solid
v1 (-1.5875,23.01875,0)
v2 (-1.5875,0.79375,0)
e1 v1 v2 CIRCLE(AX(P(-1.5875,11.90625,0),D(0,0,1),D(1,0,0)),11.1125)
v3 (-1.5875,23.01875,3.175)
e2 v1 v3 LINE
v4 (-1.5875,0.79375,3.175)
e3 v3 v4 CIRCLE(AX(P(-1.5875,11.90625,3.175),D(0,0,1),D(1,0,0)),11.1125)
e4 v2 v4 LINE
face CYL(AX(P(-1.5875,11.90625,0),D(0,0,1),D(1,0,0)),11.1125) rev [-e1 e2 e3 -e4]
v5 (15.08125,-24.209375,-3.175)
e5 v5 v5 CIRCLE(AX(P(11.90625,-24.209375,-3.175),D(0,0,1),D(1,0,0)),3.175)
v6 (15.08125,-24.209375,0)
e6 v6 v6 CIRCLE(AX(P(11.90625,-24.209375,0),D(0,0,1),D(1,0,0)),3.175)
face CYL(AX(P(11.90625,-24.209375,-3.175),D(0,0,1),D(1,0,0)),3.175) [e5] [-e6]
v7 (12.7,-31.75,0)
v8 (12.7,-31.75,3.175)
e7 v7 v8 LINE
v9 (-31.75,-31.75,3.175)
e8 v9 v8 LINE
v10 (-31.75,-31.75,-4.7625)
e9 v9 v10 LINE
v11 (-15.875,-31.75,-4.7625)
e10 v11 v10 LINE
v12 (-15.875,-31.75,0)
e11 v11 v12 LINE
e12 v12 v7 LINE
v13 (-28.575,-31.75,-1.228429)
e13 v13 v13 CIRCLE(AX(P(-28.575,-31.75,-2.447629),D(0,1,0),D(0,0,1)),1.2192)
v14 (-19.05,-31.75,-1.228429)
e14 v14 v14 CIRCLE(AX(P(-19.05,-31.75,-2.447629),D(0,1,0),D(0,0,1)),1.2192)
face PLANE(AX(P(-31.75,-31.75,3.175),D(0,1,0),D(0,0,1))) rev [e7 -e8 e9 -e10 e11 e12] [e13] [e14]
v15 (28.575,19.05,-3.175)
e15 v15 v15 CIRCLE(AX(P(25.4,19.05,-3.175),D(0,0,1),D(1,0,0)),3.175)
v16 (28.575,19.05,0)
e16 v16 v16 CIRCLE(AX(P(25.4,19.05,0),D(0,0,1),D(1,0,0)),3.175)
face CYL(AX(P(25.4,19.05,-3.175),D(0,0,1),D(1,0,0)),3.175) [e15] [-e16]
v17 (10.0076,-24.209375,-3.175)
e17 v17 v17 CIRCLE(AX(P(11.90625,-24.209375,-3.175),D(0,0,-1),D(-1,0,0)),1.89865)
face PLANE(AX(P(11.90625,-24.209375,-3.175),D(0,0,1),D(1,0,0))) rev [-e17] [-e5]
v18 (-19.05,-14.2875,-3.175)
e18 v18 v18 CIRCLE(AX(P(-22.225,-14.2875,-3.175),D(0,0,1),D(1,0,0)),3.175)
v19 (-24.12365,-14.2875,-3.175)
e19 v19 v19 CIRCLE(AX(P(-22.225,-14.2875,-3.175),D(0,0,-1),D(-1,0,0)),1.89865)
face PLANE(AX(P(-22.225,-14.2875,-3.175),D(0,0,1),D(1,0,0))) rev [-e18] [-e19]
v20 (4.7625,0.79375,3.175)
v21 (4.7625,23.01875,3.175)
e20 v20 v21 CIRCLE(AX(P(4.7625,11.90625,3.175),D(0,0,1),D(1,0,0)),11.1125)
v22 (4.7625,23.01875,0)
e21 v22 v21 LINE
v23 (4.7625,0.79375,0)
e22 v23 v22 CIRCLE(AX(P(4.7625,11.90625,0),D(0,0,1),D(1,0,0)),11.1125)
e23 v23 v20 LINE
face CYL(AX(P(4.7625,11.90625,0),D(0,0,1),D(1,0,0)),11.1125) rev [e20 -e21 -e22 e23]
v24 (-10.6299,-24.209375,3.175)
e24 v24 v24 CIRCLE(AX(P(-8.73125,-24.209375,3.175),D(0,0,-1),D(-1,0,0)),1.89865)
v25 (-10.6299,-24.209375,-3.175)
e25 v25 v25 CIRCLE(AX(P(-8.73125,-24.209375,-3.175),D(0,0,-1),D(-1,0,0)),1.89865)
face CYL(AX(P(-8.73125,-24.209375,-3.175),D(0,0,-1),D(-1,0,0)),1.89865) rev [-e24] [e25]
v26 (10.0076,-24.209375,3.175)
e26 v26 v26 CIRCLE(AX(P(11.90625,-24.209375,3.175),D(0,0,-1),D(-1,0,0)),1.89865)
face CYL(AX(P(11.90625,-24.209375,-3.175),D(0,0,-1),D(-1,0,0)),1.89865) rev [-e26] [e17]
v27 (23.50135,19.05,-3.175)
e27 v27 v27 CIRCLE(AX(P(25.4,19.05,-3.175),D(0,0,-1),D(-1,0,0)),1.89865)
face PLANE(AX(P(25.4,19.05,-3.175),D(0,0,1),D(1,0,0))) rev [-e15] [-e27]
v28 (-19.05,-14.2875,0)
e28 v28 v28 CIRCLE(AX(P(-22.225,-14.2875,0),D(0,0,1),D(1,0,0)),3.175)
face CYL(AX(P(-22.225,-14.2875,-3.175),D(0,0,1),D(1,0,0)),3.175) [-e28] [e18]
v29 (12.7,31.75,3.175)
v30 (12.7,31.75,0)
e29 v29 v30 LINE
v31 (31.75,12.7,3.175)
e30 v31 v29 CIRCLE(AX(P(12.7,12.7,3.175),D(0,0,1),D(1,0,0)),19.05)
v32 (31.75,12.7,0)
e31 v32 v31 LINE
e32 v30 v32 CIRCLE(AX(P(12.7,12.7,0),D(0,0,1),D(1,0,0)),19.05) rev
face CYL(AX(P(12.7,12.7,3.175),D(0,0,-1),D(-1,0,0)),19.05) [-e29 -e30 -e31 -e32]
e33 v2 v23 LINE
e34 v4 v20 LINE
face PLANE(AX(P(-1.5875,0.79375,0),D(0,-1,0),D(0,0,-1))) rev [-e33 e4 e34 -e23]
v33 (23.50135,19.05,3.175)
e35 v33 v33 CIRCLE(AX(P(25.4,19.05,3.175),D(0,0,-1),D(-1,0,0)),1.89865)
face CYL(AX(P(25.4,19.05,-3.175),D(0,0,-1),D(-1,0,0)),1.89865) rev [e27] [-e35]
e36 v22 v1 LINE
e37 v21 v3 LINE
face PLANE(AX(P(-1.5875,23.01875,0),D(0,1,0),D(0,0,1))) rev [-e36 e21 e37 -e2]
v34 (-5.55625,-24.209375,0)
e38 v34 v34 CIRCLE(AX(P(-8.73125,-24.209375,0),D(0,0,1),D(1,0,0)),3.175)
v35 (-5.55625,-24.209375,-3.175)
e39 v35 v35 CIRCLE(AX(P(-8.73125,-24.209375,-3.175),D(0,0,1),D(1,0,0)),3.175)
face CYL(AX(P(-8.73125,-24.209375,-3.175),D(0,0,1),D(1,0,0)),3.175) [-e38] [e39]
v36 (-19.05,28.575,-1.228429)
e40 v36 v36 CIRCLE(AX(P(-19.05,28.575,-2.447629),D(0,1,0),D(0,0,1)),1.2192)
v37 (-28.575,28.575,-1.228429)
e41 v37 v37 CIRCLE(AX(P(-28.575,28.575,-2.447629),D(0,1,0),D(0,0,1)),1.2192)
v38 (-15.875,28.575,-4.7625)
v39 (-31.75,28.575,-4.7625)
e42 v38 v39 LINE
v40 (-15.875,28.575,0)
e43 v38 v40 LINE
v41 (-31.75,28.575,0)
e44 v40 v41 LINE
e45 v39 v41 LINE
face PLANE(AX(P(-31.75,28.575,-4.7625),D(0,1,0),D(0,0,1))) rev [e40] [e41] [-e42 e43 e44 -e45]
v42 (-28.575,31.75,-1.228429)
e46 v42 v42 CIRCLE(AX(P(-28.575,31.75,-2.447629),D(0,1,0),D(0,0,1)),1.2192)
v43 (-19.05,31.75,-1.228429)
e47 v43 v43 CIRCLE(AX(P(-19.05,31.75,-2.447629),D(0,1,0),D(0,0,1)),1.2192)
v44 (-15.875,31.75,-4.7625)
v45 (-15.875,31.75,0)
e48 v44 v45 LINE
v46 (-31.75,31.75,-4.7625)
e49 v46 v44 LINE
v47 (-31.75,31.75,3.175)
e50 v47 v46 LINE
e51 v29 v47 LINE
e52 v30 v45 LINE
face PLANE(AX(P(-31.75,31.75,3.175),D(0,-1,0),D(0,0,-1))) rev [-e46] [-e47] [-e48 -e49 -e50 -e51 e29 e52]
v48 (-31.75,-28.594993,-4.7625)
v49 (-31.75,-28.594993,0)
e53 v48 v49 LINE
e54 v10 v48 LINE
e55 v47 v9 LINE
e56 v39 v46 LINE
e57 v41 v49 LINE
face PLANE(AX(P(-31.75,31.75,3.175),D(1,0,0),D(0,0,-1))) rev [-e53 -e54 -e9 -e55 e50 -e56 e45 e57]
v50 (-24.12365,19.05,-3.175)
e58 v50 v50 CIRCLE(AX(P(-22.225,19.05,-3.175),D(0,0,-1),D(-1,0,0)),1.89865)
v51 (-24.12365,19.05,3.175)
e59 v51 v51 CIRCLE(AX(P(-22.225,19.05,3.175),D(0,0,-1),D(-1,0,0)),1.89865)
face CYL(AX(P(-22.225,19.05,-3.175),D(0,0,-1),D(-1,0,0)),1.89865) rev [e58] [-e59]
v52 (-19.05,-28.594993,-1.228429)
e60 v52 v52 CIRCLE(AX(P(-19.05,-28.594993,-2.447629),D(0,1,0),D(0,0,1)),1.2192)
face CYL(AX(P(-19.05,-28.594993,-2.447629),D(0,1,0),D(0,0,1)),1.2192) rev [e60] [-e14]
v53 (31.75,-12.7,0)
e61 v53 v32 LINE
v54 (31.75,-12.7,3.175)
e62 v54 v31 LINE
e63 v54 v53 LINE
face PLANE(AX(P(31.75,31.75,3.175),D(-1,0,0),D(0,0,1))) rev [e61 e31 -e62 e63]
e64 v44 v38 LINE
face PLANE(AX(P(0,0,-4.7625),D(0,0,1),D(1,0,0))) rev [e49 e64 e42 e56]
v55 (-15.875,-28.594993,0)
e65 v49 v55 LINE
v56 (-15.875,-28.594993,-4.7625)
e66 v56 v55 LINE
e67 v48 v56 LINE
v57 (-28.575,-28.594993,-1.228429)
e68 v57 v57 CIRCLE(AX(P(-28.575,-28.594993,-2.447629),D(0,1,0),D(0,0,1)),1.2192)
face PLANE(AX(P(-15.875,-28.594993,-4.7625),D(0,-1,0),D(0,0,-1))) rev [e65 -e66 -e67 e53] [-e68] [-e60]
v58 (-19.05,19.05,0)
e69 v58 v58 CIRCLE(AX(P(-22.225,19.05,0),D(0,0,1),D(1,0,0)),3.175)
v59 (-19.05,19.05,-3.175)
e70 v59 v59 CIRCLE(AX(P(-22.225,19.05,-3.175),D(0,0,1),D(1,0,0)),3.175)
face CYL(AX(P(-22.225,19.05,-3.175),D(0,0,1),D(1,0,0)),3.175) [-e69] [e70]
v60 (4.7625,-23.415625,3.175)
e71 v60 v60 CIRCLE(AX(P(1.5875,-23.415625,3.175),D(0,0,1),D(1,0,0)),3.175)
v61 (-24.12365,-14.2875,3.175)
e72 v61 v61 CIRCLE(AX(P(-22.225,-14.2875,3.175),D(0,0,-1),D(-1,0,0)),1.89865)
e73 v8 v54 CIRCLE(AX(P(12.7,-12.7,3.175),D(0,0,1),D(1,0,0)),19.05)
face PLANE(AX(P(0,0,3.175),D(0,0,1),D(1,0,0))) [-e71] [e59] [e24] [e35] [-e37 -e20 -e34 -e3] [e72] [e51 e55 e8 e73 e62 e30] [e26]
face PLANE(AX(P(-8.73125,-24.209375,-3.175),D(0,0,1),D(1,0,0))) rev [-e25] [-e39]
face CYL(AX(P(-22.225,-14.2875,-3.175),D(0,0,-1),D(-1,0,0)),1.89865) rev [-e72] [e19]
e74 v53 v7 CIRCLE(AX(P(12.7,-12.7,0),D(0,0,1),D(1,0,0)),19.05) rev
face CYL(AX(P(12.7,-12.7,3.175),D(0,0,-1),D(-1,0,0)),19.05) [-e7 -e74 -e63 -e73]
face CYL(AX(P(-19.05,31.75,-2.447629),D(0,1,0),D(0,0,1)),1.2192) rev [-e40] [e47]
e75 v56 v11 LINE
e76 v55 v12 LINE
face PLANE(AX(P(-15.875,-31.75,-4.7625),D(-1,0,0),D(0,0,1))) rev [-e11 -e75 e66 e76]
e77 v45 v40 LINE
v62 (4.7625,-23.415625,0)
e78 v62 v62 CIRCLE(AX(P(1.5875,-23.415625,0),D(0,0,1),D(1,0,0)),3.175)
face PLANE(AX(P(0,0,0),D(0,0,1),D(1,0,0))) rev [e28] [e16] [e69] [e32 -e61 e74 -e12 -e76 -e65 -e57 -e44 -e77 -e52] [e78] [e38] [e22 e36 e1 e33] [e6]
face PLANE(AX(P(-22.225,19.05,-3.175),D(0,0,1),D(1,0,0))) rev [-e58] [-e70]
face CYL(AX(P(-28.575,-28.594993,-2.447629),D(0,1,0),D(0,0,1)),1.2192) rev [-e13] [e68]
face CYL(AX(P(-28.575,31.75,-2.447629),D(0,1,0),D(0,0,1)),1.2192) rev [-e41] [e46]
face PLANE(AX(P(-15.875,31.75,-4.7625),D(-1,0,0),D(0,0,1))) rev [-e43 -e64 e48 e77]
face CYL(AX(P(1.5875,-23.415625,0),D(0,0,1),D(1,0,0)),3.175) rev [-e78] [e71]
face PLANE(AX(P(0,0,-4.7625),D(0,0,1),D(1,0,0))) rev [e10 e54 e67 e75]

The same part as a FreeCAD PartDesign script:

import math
import FreeCAD as App
import Part
import Sketcher
Q = App.Units.Quantity


def edges_at(feature, points):
    """Names of the edges that pass closest to the given points."""
    edges = feature.Shape.Edges
    near = lambda p: min(range(len(edges)), key=lambda i: edges[i].distToShape(Part.Vertex(*p))[0])
    return sorted({f"Edge{near(p) + 1}" for p in points})

doc = App.newDocument("Part")
body = doc.addObject("PartDesign::Body", "Body")

sketch1 = doc.addObject("Sketcher::SketchObject", "Sketch")
body.addObject(sketch1)
sketch1.AttachmentSupport = (doc.XY_Plane, [""])
sketch1.MapMode = "FlatFace"
sketch1.addGeometry([
    Part.LineSegment(App.Vector(-32, 32, 0), App.Vector(-32, -32, 0)),
    Part.LineSegment(App.Vector(-32, -32, 0), App.Vector(32, -32, 0)),
    Part.LineSegment(App.Vector(32, -32, 0), App.Vector(32, 32, 0)),
    Part.LineSegment(App.Vector(32, 32, 0), App.Vector(-32, 32, 0)),
], False)
sketch1.addConstraint([
    Sketcher.Constraint("Coincident", 0, 2, 1, 1),
    Sketcher.Constraint("Coincident", 1, 2, 2, 1),
    Sketcher.Constraint("Coincident", 2, 2, 3, 1),
    Sketcher.Constraint("Coincident", 3, 2, 0, 1),
    Sketcher.Constraint("Vertical", 0),
    Sketcher.Constraint("Horizontal", 1),
    Sketcher.Constraint("Vertical", 2),
    Sketcher.Constraint("Horizontal", 3),
    Sketcher.Constraint("Symmetric", 0, 2, 2, 2, -1, 1),
    Sketcher.Constraint("Equal", 3, 0),
    Sketcher.Constraint("DistanceX", 1, 1, 1, 2, Q("2.5 in")),
])
pad1 = doc.addObject("PartDesign::Pad", "Pad")
body.addObject(pad1)
pad1.Profile = sketch1
pad1.Length = Q("0.125 in")

sketch2 = doc.addObject("Sketcher::SketchObject", "Sketch001")
body.addObject(sketch2)
sketch2.AttachmentSupport = (doc.XY_Plane, [""])
sketch2.MapMode = "FlatFace"
sketch2.addGeometry([
    Part.LineSegment(App.Vector(-15.9, -31.8, 0), App.Vector(-31.8, -31.8, 0)),
    Part.LineSegment(App.Vector(-31.8, -31.8, 0), App.Vector(-31.8, -28.6, 0)),
    Part.LineSegment(App.Vector(-31.8, -28.6, 0), App.Vector(-15.9, -28.6, 0)),
    Part.LineSegment(App.Vector(-15.9, -28.6, 0), App.Vector(-15.9, -31.8, 0)),
], False)
sketch2.addConstraint([
    Sketcher.Constraint("Coincident", 0, 2, 1, 1),
    Sketcher.Constraint("Coincident", 1, 2, 2, 1),
    Sketcher.Constraint("Coincident", 2, 2, 3, 1),
    Sketcher.Constraint("Coincident", 3, 2, 0, 1),
    Sketcher.Constraint("Horizontal", 0),
    Sketcher.Constraint("Vertical", 1),
    Sketcher.Constraint("Horizontal", 2),
    Sketcher.Constraint("Vertical", 3),
    Sketcher.Constraint("DistanceX", 0, 2, 0, 1, Q("0.625 in")),
    Sketcher.Constraint("DistanceX", 0, 2, -1, 1, Q("1.25 in")),
    Sketcher.Constraint("DistanceY", 0, 2, -1, 1, Q("1.25 in")),
    Sketcher.Constraint("DistanceY", 1, 1, 1, 2, 3.155007),
])
pad2 = doc.addObject("PartDesign::Pad", "Pad001")
body.addObject(pad2)
pad2.Profile = sketch2
pad2.Length = Q("0.1875 in")
pad2.Reversed = True

sketch3 = doc.addObject("Sketcher::SketchObject", "Sketch002")
body.addObject(sketch3)
sketch3.AttachmentSupport = (doc.XZ_Plane, [""])
sketch3.MapMode = "FlatFace"
sketch3.AttachmentOffset = App.Placement(App.Vector(0, 0, 28.594993), App.Rotation())
sketch3.addGeometry([
    Part.Circle(App.Vector(-28.6, -2.4, 0), App.Vector(0, 0, 1), 1.2),
    Part.Circle(App.Vector(-19.1, -2.4, 0), App.Vector(0, 0, 1), 1.2),
], False)
sketch3.addConstraint([
    Sketcher.Constraint("Equal", 0, 1),
    Sketcher.Constraint("Horizontal", 0, 3, 1, 3),
    Sketcher.Constraint("Diameter", 0, Q("0.096 in")),
    Sketcher.Constraint("DistanceX", 1, 3, -1, 1, Q("0.75 in")),
    Sketcher.Constraint("DistanceX", 0, 3, -1, 1, Q("1.125 in")),
    Sketcher.Constraint("DistanceY", 0, 3, -1, 1, 2.447629),
])
doc.recompute()
hole = doc.addObject("PartDesign::Hole", "Hole")
body.addObject(hole)
hole.Profile = sketch3
hole.ThreadType = "None"
hole.Diameter = Q("0.096 in")
hole.DepthType = "Dimension"
hole.Depth = 3.155007
hole.DrillPoint = "Flat"
hole.Reversed = True
doc.recompute()

fillet = doc.addObject("PartDesign::Fillet", "Fillet")
body.addObject(fillet)
fillet.Base = (hole, edges_at(hole, [(31.75, -31.75, 1.587), (31.75, 31.75, 1.587)]))
fillet.Radius = Q("0.75 in")

sketch4 = doc.addObject("Sketcher::SketchObject", "Sketch003")
body.addObject(sketch4)
sketch4.AttachmentSupport = (doc.XY_Plane, [""])
sketch4.MapMode = "FlatFace"
sketch4.addGeometry([
    Part.LineSegment(App.Vector(-15.9, 31.8, 0), App.Vector(-15.9, 28.6, 0)),
    Part.LineSegment(App.Vector(-15.9, 28.6, 0), App.Vector(-31.8, 28.6, 0)),
    Part.LineSegment(App.Vector(-31.8, 28.6, 0), App.Vector(-31.8, 31.8, 0)),
    Part.LineSegment(App.Vector(-31.8, 31.8, 0), App.Vector(-15.9, 31.8, 0)),
], False)
sketch4.addConstraint([
    Sketcher.Constraint("Coincident", 0, 2, 1, 1),
    Sketcher.Constraint("Coincident", 1, 2, 2, 1),
    Sketcher.Constraint("Coincident", 2, 2, 3, 1),
    Sketcher.Constraint("Coincident", 3, 2, 0, 1),
    Sketcher.Constraint("Vertical", 0),
    Sketcher.Constraint("Horizontal", 1),
    Sketcher.Constraint("Vertical", 2),
    Sketcher.Constraint("Horizontal", 3),
    Sketcher.Constraint("DistanceX", 1, 2, 1, 1, Q("0.625 in")),
    Sketcher.Constraint("DistanceY", 0, 2, 0, 1, Q("0.125 in")),
    Sketcher.Constraint("DistanceX", 1, 2, -1, 1, Q("1.25 in")),
    Sketcher.Constraint("DistanceY", -1, 1, 2, 2, Q("1.25 in")),
])
pad3 = doc.addObject("PartDesign::Pad", "Pad002")
body.addObject(pad3)
pad3.Profile = sketch4
pad3.Length = Q("0.1875 in")
pad3.Reversed = True

sketch5 = doc.addObject("Sketcher::SketchObject", "Sketch004")
body.addObject(sketch5)
sketch5.AttachmentSupport = (doc.XZ_Plane, [""])
sketch5.MapMode = "FlatFace"
sketch5.AttachmentOffset = App.Placement(App.Vector(0, 0, -1.25 * 25.4), App.Rotation())
sketch5.addGeometry([
    Part.Circle(App.Vector(-28.6, -2.4, 0), App.Vector(0, 0, 1), 1.2),
    Part.Circle(App.Vector(-19.1, -2.4, 0), App.Vector(0, 0, 1), 1.2),
], False)
sketch5.addConstraint([
    Sketcher.Constraint("Equal", 0, 1),
    Sketcher.Constraint("Horizontal", 0, 3, 1, 3),
    Sketcher.Constraint("Diameter", 0, Q("0.096 in")),
    Sketcher.Constraint("DistanceX", 1, 3, -1, 1, Q("0.75 in")),
    Sketcher.Constraint("DistanceX", 0, 3, -1, 1, Q("1.125 in")),
    Sketcher.Constraint("DistanceY", 0, 3, -1, 1, 2.447629),
])
doc.recompute()
hole2 = doc.addObject("PartDesign::Hole", "Hole001")
body.addObject(hole2)
hole2.Profile = sketch5
hole2.ThreadType = "None"
hole2.Diameter = Q("0.096 in")
hole2.DepthType = "Dimension"
hole2.Depth = Q("0.125 in")
hole2.DrillPoint = "Flat"
hole2.Reversed = True

sketch6 = doc.addObject("Sketcher::SketchObject", "Sketch005")
body.addObject(sketch6)
sketch6.AttachmentSupport = (doc.XY_Plane, [""])
sketch6.MapMode = "FlatFace"
sketch6.addGeometry([
    Part.Circle(App.Vector(25.4, 19.1, 0), App.Vector(0, 0, 1), 3.2),
    Part.Circle(App.Vector(-22.2, 19.1, 0), App.Vector(0, 0, 1), 3.2),
    Part.Circle(App.Vector(-22.2, -14.3, 0), App.Vector(0, 0, 1), 3.2),
    Part.Circle(App.Vector(-8.7, -24.2, 0), App.Vector(0, 0, 1), 3.2),
    Part.Circle(App.Vector(11.9, -24.2, 0), App.Vector(0, 0, 1), 3.2),
], False)
sketch6.addConstraint([
    Sketcher.Constraint("Equal", 0, 1),
    Sketcher.Constraint("Equal", 1, 2),
    Sketcher.Constraint("Equal", 2, 3),
    Sketcher.Constraint("Equal", 3, 4),
    Sketcher.Constraint("Horizontal", 0, 3, 1, 3),
    Sketcher.Constraint("Horizontal", 3, 3, 4, 3),
    Sketcher.Constraint("Vertical", 1, 3, 2, 3),
    Sketcher.Constraint("Diameter", 0, Q("0.25 in")),
    Sketcher.Constraint("DistanceX", -1, 1, 0, 3, Q("1 in")),
    Sketcher.Constraint("DistanceY", -1, 1, 0, 3, Q("0.75 in")),
    Sketcher.Constraint("DistanceX", 1, 3, -1, 1, Q("0.875 in")),
    Sketcher.Constraint("DistanceY", 2, 3, -1, 1, Q("0.5625 in")),
    Sketcher.Constraint("DistanceX", 3, 3, -1, 1, Q("0.34375 in")),
    Sketcher.Constraint("DistanceY", 3, 3, -1, 1, Q("0.953125 in")),
    Sketcher.Constraint("DistanceX", -1, 1, 4, 3, Q("0.46875 in")),
])
pad4 = doc.addObject("PartDesign::Pad", "Pad003")
body.addObject(pad4)
pad4.Profile = sketch6
pad4.Length = Q("0.125 in")
pad4.Reversed = True

sketch7 = doc.addObject("Sketcher::SketchObject", "Sketch006")
body.addObject(sketch7)
sketch7.AttachmentSupport = (doc.XY_Plane, [""])
sketch7.MapMode = "FlatFace"
sketch7.AttachmentOffset = App.Placement(App.Vector(0, 0, -0.125 * 25.4), App.Rotation())
sketch7.addGeometry([
    Part.Circle(App.Vector(25.4, 19.1, 0), App.Vector(0, 0, 1), 1.9),
    Part.Circle(App.Vector(-22.2, 19.1, 0), App.Vector(0, 0, 1), 1.9),
    Part.Circle(App.Vector(-22.2, -14.3, 0), App.Vector(0, 0, 1), 1.9),
    Part.Circle(App.Vector(-8.7, -24.2, 0), App.Vector(0, 0, 1), 1.9),
    Part.Circle(App.Vector(11.9, -24.2, 0), App.Vector(0, 0, 1), 1.9),
], False)
sketch7.addConstraint([
    Sketcher.Constraint("Equal", 0, 1),
    Sketcher.Constraint("Equal", 1, 2),
    Sketcher.Constraint("Equal", 2, 3),
    Sketcher.Constraint("Equal", 3, 4),
    Sketcher.Constraint("Horizontal", 0, 3, 1, 3),
    Sketcher.Constraint("Horizontal", 3, 3, 4, 3),
    Sketcher.Constraint("Vertical", 1, 3, 2, 3),
    Sketcher.Constraint("DistanceX", -1, 1, 0, 3, Q("1 in")),
    Sketcher.Constraint("Diameter", 0, Q("0.1495 in")),
    Sketcher.Constraint("DistanceY", -1, 1, 0, 3, Q("0.75 in")),
    Sketcher.Constraint("DistanceX", 1, 3, -1, 1, Q("0.875 in")),
    Sketcher.Constraint("DistanceY", 2, 3, -1, 1, Q("0.5625 in")),
    Sketcher.Constraint("DistanceX", 3, 3, -1, 1, Q("0.34375 in")),
    Sketcher.Constraint("DistanceY", 3, 3, -1, 1, Q("0.953125 in")),
    Sketcher.Constraint("DistanceX", -1, 1, 4, 3, Q("0.46875 in")),
])
doc.recompute()
hole3 = doc.addObject("PartDesign::Hole", "Hole002")
body.addObject(hole3)
hole3.Profile = sketch7
hole3.ThreadType = "None"
hole3.Diameter = Q("0.1495 in")
hole3.DepthType = "ThroughAll"
hole3.Reversed = True

sketch8 = doc.addObject("Sketcher::SketchObject", "Sketch007")
body.addObject(sketch8)
sketch8.AttachmentSupport = (doc.XY_Plane, [""])
sketch8.MapMode = "FlatFace"
sketch8.AttachmentOffset = App.Placement(App.Vector(0, 0, 0.125 * 25.4), App.Rotation())
sketch8.addGeometry([
    Part.Circle(App.Vector(1.6, -23.4, 0), App.Vector(0, 0, 1), 3.2),
    Part.LineSegment(App.Vector(4.8, 23, 0), App.Vector(-1.6, 23, 0)),
    Part.ArcOfCircle(Part.Circle(App.Vector(-1.6, 11.9, 0), App.Vector(0, 0, 1), 11.1), math.radians(90), math.radians(270)),
    Part.LineSegment(App.Vector(-1.6, 0.8, 0), App.Vector(4.8, 0.8, 0)),
    Part.ArcOfCircle(Part.Circle(App.Vector(4.8, 11.9, 0), App.Vector(0, 0, 1), 11.1), math.radians(-90), math.radians(90)),
], False)
sketch8.addConstraint([
    Sketcher.Constraint("Tangent", 1, 2, 2, 1),
    Sketcher.Constraint("Tangent", 2, 2, 3, 1),
    Sketcher.Constraint("Tangent", 3, 2, 4, 1),
    Sketcher.Constraint("Tangent", 4, 2, 1, 1),
    Sketcher.Constraint("Horizontal", 1),
    Sketcher.Constraint("Horizontal", 3),
    Sketcher.Constraint("Diameter", 0, Q("0.25 in")),
    Sketcher.Constraint("Radius", 2, Q("0.4375 in")),
    Sketcher.Constraint("DistanceX", 1, 2, 1, 1, Q("0.25 in")),
    Sketcher.Constraint("DistanceX", -1, 1, 0, 3, Q("0.0625 in")),
    Sketcher.Constraint("DistanceY", 0, 3, -1, 1, Q("0.921875 in")),
    Sketcher.Constraint("DistanceX", 2, 3, -1, 1, Q("0.0625 in")),
    Sketcher.Constraint("DistanceY", -1, 1, 2, 3, Q("0.46875 in")),
])
pocket1 = doc.addObject("PartDesign::Pocket", "Pocket")
body.addObject(pocket1)
pocket1.Profile = sketch8
pocket1.Length = Q("0.125 in")

doc.recompute()
